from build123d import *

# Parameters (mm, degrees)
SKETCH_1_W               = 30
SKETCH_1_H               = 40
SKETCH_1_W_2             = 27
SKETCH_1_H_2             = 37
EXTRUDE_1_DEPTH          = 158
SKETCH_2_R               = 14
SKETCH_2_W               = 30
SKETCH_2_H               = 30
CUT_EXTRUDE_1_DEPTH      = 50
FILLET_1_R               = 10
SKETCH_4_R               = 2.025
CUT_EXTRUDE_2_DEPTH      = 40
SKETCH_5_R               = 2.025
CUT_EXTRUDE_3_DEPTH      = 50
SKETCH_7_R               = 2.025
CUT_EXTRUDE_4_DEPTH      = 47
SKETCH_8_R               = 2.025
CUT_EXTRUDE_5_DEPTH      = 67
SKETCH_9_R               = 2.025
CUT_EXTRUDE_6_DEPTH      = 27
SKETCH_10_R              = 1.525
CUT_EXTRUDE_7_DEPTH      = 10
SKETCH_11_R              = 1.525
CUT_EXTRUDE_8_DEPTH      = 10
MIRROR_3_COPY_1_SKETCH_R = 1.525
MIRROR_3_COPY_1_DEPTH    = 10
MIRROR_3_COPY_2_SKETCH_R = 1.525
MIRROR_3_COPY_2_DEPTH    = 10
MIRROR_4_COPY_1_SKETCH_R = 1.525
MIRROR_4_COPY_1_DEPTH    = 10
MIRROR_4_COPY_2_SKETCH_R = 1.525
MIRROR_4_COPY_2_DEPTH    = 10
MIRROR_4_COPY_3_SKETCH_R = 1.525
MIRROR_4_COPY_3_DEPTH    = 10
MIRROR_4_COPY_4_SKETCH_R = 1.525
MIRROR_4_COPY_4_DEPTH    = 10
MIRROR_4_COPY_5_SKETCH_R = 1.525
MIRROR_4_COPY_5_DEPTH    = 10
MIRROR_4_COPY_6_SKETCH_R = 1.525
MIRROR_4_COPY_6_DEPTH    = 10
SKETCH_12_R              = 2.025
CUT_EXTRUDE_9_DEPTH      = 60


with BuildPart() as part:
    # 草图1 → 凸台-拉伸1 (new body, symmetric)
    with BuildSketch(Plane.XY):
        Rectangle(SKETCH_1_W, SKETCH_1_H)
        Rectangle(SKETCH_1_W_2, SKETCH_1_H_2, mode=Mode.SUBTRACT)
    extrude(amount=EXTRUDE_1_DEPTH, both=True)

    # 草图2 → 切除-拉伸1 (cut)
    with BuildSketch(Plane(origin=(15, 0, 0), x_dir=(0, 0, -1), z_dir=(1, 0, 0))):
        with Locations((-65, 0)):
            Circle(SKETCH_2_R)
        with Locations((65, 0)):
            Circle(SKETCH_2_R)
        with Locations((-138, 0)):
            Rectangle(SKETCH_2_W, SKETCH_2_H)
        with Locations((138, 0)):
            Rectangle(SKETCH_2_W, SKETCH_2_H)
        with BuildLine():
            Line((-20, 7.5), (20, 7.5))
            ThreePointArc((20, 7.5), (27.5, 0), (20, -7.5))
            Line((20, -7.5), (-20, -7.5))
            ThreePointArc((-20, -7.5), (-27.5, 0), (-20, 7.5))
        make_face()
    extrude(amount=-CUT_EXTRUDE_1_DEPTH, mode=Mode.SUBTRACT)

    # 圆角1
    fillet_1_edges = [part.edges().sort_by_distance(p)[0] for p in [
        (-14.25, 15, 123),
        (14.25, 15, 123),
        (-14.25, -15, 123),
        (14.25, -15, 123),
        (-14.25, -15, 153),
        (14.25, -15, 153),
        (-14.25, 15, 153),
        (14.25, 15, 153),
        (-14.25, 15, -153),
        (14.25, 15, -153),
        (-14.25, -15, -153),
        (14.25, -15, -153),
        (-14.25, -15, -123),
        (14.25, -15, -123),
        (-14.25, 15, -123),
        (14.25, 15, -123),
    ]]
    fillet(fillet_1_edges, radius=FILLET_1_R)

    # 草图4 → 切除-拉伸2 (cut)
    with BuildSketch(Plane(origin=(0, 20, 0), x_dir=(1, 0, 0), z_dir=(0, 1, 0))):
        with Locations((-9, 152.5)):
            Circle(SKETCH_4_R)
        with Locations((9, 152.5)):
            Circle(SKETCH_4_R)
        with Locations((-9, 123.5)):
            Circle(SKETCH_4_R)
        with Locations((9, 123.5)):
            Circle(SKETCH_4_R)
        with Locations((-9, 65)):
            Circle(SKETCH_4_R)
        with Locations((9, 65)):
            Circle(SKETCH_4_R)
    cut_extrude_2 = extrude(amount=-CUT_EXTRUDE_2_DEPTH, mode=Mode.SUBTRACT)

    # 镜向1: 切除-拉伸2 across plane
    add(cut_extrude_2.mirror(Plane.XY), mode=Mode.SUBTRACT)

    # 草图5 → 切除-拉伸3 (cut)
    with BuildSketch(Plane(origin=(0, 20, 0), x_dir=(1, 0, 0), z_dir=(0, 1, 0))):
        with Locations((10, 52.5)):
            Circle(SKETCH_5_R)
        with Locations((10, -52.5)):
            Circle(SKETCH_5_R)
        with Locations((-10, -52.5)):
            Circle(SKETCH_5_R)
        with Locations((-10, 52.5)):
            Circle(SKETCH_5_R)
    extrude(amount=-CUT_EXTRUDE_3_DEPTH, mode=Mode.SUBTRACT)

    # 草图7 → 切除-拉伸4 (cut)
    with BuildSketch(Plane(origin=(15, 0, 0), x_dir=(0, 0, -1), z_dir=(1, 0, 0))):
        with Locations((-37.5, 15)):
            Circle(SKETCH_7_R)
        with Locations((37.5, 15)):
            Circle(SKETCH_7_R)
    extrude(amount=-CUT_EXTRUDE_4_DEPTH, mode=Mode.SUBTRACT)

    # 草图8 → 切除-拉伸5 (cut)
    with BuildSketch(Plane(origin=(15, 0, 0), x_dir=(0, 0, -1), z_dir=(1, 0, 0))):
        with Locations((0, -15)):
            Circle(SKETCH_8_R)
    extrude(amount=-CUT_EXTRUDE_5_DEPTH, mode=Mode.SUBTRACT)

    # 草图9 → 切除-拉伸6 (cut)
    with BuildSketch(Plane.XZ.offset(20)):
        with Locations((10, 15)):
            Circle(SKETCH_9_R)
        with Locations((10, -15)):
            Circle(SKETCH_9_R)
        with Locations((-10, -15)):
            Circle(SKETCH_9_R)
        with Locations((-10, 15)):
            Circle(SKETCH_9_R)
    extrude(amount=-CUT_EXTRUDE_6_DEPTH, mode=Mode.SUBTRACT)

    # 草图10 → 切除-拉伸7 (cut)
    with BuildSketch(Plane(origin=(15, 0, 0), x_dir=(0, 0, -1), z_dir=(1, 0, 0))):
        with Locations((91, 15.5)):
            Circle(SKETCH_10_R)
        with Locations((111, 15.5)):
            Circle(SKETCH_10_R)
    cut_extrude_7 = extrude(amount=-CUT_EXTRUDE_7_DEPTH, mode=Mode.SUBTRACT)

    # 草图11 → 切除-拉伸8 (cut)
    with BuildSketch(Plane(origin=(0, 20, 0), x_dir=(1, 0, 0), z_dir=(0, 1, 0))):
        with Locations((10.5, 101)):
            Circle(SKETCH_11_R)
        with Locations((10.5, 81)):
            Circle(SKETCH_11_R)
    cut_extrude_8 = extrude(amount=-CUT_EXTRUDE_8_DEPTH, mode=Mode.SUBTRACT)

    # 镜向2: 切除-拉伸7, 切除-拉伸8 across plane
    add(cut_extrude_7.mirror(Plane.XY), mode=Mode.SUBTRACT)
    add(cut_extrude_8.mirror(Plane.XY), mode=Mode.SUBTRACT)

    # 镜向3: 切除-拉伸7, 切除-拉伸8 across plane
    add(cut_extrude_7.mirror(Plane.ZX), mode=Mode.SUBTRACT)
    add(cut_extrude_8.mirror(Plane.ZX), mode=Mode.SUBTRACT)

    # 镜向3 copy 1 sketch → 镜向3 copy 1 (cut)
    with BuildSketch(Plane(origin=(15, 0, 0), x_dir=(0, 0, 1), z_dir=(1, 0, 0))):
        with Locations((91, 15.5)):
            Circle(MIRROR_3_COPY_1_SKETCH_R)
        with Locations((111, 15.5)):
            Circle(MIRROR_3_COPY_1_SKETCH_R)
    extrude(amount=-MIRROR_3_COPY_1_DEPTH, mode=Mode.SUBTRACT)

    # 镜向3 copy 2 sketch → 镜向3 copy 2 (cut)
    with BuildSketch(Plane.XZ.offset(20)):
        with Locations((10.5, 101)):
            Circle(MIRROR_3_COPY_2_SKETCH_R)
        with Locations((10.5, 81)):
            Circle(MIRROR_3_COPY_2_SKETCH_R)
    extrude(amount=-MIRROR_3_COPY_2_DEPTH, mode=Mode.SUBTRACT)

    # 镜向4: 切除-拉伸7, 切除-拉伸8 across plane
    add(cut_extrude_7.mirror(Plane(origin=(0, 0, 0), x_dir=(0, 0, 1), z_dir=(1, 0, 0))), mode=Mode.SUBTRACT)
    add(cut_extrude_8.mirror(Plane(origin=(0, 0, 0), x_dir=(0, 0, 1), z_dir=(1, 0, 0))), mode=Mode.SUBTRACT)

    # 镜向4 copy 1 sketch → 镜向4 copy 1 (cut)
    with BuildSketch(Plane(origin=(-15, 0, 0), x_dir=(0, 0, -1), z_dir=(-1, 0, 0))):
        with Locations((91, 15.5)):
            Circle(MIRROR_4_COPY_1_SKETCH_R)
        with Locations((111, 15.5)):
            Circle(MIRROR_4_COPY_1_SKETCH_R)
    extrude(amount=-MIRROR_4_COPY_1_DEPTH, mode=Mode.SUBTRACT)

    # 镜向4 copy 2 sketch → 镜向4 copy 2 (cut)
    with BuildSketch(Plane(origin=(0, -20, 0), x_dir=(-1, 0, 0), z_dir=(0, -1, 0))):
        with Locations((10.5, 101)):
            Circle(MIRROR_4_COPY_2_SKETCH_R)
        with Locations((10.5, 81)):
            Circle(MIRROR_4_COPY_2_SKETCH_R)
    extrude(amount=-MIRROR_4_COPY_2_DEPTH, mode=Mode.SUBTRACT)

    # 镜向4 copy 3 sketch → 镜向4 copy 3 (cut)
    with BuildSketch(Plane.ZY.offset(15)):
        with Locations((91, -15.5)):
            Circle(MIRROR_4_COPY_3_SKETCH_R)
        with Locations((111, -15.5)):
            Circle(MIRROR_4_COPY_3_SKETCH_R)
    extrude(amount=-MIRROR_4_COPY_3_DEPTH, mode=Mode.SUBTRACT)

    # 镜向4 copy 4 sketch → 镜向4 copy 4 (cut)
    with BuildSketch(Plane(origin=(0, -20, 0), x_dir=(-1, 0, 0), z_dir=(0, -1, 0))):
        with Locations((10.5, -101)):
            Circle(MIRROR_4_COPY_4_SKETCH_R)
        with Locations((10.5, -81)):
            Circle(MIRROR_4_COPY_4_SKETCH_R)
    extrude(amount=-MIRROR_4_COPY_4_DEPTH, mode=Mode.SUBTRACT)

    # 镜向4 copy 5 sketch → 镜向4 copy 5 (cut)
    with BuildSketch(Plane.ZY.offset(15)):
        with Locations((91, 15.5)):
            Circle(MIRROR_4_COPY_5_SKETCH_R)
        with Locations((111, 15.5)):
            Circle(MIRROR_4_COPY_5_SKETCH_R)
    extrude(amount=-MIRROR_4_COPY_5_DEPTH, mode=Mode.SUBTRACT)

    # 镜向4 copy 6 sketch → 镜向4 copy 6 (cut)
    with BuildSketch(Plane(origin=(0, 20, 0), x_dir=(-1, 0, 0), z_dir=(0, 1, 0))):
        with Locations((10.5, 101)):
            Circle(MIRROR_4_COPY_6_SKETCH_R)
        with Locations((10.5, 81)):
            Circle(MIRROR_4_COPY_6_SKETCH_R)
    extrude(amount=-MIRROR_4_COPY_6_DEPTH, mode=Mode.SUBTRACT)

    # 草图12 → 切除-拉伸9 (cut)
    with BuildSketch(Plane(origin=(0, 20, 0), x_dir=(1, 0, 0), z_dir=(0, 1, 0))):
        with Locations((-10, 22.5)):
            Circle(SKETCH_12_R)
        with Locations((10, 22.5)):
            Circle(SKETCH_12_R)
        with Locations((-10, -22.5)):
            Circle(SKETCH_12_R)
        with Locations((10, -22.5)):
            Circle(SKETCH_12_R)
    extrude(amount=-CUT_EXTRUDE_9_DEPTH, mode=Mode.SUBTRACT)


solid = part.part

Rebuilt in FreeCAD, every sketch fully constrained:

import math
import FreeCAD as App
import Part
import Sketcher

V = App.Vector


def edges_at(feature, points):
    """Names of the edges that pass closest to the given points."""
    edges = feature.Shape.Edges
    near = lambda p: min(range(len(edges)), key=lambda i: edges[i].distToShape(Part.Vertex(*p))[0])
    return sorted({f"Edge{near(p) + 1}" for p in points})

doc = App.newDocument("Part")
body = doc.addObject("PartDesign::Body", "Body")

sketch1 = body.newObject("Sketcher::SketchObject", "Sketch")
sketch1.AttachmentSupport = (doc.getObject("XY_Plane"), [""])
sketch1.MapMode = "FlatFace"
sketch1.addGeometry([
    Part.LineSegment(V(-15, 20, 0), V(-15, -20, 0)),
    Part.LineSegment(V(-15, -20, 0), V(15, -20, 0)),
    Part.LineSegment(V(15, -20, 0), V(15, 20, 0)),
    Part.LineSegment(V(15, 20, 0), V(-15, 20, 0)),
    Part.LineSegment(V(13.5, -18.5, 0), V(-13.5, -18.5, 0)),
    Part.LineSegment(V(-13.5, -18.5, 0), V(-13.5, 18.5, 0)),
    Part.LineSegment(V(-13.5, 18.5, 0), V(13.5, 18.5, 0)),
    Part.LineSegment(V(13.5, 18.5, 0), V(13.5, -18.5, 0)),
], False)
sketch1.addConstraint([
    Sketcher.Constraint("Coincident", 0, 2, 1, 1),
    Sketcher.Constraint("Coincident", 1, 2, 2, 1),
    Sketcher.Constraint("Coincident", 2, 2, 3, 1),
    Sketcher.Constraint("Coincident", 3, 2, 0, 1),
    Sketcher.Constraint("Coincident", 4, 2, 5, 1),
    Sketcher.Constraint("Coincident", 5, 2, 6, 1),
    Sketcher.Constraint("Coincident", 6, 2, 7, 1),
    Sketcher.Constraint("Coincident", 7, 2, 4, 1),
    Sketcher.Constraint("Vertical", 0),
    Sketcher.Constraint("Horizontal", 1),
    Sketcher.Constraint("Vertical", 2),
    Sketcher.Constraint("Horizontal", 3),
    Sketcher.Constraint("Horizontal", 4),
    Sketcher.Constraint("Vertical", 5),
    Sketcher.Constraint("Horizontal", 6),
    Sketcher.Constraint("Vertical", 7),
    Sketcher.Constraint("Symmetric", 0, 2, 2, 2, -1, 1),
    Sketcher.Constraint("Symmetric", 4, 2, 6, 2, -1, 1),
    Sketcher.Constraint("DistanceX", 1, 1, 1, 2, 30.0),
    Sketcher.Constraint("DistanceX", 4, 2, 4, 1, 27.0),
    Sketcher.Constraint("DistanceY", 0, 2, 0, 1, 40.0),
    Sketcher.Constraint("DistanceY", 5, 1, 5, 2, 37.0),
])
pad1 = body.newObject("PartDesign::Pad", "Pad")
pad1.Profile = sketch1
pad1.Length = 316
pad1.Midplane = True

sketch2 = body.newObject("Sketcher::SketchObject", "Sketch001")
sketch2.AttachmentSupport = (doc.getObject("YZ_Plane"), [""])
sketch2.MapMode = "FlatFace"
sketch2.AttachmentOffset = App.Placement(V(0, 0, 15), App.Rotation())
sketch2.addGeometry([
    Part.Circle(V(0, 65, 0), V(0, 0, 1), 14),
    Part.Circle(V(0, -65, 0), V(0, 0, 1), 14),
    Part.LineSegment(V(15, 153, 0), V(-15, 153, 0)),
    Part.LineSegment(V(-15, 153, 0), V(-15, 123, 0)),
    Part.LineSegment(V(-15, 123, 0), V(15, 123, 0)),
    Part.LineSegment(V(15, 123, 0), V(15, 153, 0)),
    Part.LineSegment(V(15, -123, 0), V(-15, -123, 0)),
    Part.LineSegment(V(-15, -123, 0), V(-15, -153, 0)),
    Part.LineSegment(V(-15, -153, 0), V(15, -153, 0)),
    Part.LineSegment(V(15, -153, 0), V(15, -123, 0)),
    Part.LineSegment(V(7.5, -20, 0), V(7.5, 20, 0)),
    Part.ArcOfCircle(Part.Circle(V(0, 20, 0), V(0, 0, 1), 7.5), math.radians(0), math.radians(180)),
    Part.LineSegment(V(-7.5, 20, 0), V(-7.5, -20, 0)),
    Part.ArcOfCircle(Part.Circle(V(0, -20, 0), V(0, 0, 1), 7.5), math.radians(180), math.radians(360)),
], False)
sketch2.addConstraint([
    Sketcher.Constraint("Coincident", 2, 2, 3, 1),
    Sketcher.Constraint("Coincident", 3, 2, 4, 1),
    Sketcher.Constraint("Coincident", 4, 2, 5, 1),
    Sketcher.Constraint("Coincident", 5, 2, 2, 1),
    Sketcher.Constraint("Coincident", 6, 2, 7, 1),
    Sketcher.Constraint("Coincident", 7, 2, 8, 1),
    Sketcher.Constraint("Coincident", 8, 2, 9, 1),
    Sketcher.Constraint("Coincident", 9, 2, 6, 1),
    Sketcher.Constraint("Tangent", 10, 2, 11, 1),
    Sketcher.Constraint("Tangent", 11, 2, 12, 1),
    Sketcher.Constraint("Tangent", 12, 2, 13, 1),
    Sketcher.Constraint("Tangent", 13, 2, 10, 1),
    Sketcher.Constraint("Horizontal", 2),
    Sketcher.Constraint("Vertical", 3),
    Sketcher.Constraint("Horizontal", 4),
    Sketcher.Constraint("Vertical", 5),
    Sketcher.Constraint("Horizontal", 6),
    Sketcher.Constraint("Vertical", 7),
    Sketcher.Constraint("Horizontal", 8),
    Sketcher.Constraint("Vertical", 9),
    Sketcher.Constraint("Vertical", 10),
    Sketcher.Constraint("Vertical", 12),
    Sketcher.Constraint("Equal", 0, 1),
    Sketcher.Constraint("Symmetric", 0, 3, 1, 3, -1, 1),
    Sketcher.Constraint("Symmetric", 11, 3, 13, 3, -1, 1),
    Sketcher.Constraint("Symmetric", 4, 2, 6, 2, -1, 1),
    Sketcher.Constraint("Symmetric", 2, 2, 8, 2, -1, 1),
    Sketcher.Constraint("PointOnObject", 0, 3, -2),
    Sketcher.Constraint("Vertical", 3, 2, 6, 2),
    Sketcher.Constraint("Equal", 8, 3),
    Sketcher.Constraint("Diameter", 0, 28.0),
    Sketcher.Constraint("Radius", 11, 7.5),
    Sketcher.Constraint("DistanceX", 2, 2, 2, 1, 30.0),
    Sketcher.Constraint("DistanceY", 10, 1, 10, 2, 40.0),
    Sketcher.Constraint("DistanceY", -1, 1, 0, 3, 65.0),
    Sketcher.Constraint("DistanceY", -1, 1, 2, 2, 153.0),
])
pocket1 = body.newObject("PartDesign::Pocket", "Pocket")
pocket1.Profile = sketch2
pocket1.Length = 50
doc.recompute()

fillet = body.newObject("PartDesign::Fillet", "Fillet")
fillet.Base = (pocket1, edges_at(pocket1, [
    (-14.25, 15, 123),
    (14.25, 15, 123),
    (-14.25, -15, 123),
    (14.25, -15, 123),
    (-14.25, -15, 153),
    (14.25, -15, 153),
    (-14.25, 15, 153),
    (14.25, 15, 153),
    (-14.25, 15, -153),
    (14.25, 15, -153),
    (-14.25, -15, -153),
    (14.25, -15, -153),
    (-14.25, -15, -123),
    (14.25, -15, -123),
    (-14.25, 15, -123),
    (14.25, 15, -123),
]))
fillet.Radius = 10

sketch3 = body.newObject("Sketcher::SketchObject", "Sketch002")
sketch3.AttachmentSupport = (doc.getObject("XZ_Plane"), [""])
sketch3.MapMode = "FlatFace"
sketch3.AttachmentOffset = App.Placement(V(0, 0, -20), App.Rotation())
sketch3.addGeometry([
    Part.Circle(V(-9, -152.5, 0), V(0, 0, 1), 2.025),
    Part.Circle(V(9, -152.5, 0), V(0, 0, 1), 2.025),
    Part.Circle(V(-9, -123.5, 0), V(0, 0, 1), 2.025),
    Part.Circle(V(9, -123.5, 0), V(0, 0, 1), 2.025),
    Part.Circle(V(-9, -65, 0), V(0, 0, 1), 2.025),
    Part.Circle(V(9, -65, 0), V(0, 0, 1), 2.025),
], False)
sketch3.addConstraint([
    Sketcher.Constraint("Equal", 0, 1),
    Sketcher.Constraint("Equal", 1, 2),
    Sketcher.Constraint("Equal", 2, 3),
    Sketcher.Constraint("Equal", 3, 4),
    Sketcher.Constraint("Equal", 4, 5),
    Sketcher.Constraint("Symmetric", 0, 3, 1, 3, -2),
    Sketcher.Constraint("Symmetric", 2, 3, 3, 3, -2),
    Sketcher.Constraint("Symmetric", 4, 3, 5, 3, -2),
    Sketcher.Constraint("Vertical", 0, 3, 2, 3),
    Sketcher.Constraint("Vertical", 2, 3, 4, 3),
    Sketcher.Constraint("Diameter", 0, 4.05),
    Sketcher.Constraint("DistanceX", 0, 3, -1, 1, 9.0),
    Sketcher.Constraint("DistanceY", 4, 3, -1, 1, 65.0),
    Sketcher.Constraint("DistanceY", 0, 3, 2, 3, 29.0),
    Sketcher.Constraint("DistanceY", 0, 3, -1, 1, 152.5),
])
pocket2 = body.newObject("PartDesign::Pocket", "Pocket001")
pocket2.Profile = sketch3
pocket2.Length = 40
pocket2.Reversed = True
doc.recompute()

mirrored = body.newObject("PartDesign::Mirrored", "Mirrored")
mirrored.Originals = [pocket2]
mirrored.MirrorPlane = (doc.getObject("XY_Plane"), [""])
body.Tip = mirrored

sketch4 = body.newObject("Sketcher::SketchObject", "Sketch003")
sketch4.AttachmentSupport = (doc.getObject("XZ_Plane"), [""])
sketch4.MapMode = "FlatFace"
sketch4.AttachmentOffset = App.Placement(V(0, 0, -20), App.Rotation())
sketch4.addGeometry([
    Part.Circle(V(10, -52.5, 0), V(0, 0, 1), 2.025),
    Part.Circle(V(10, 52.5, 0), V(0, 0, 1), 2.025),
    Part.Circle(V(-10, 52.5, 0), V(0, 0, 1), 2.025),
    Part.Circle(V(-10, -52.5, 0), V(0, 0, 1), 2.025),
], False)
sketch4.addConstraint([
    Sketcher.Constraint("Equal", 0, 1),
    Sketcher.Constraint("Equal", 1, 2),
    Sketcher.Constraint("Equal", 2, 3),
    Sketcher.Constraint("Symmetric", 0, 3, 2, 3, -1, 1),
    Sketcher.Constraint("Symmetric", 1, 3, 3, 3, -1, 1),
    Sketcher.Constraint("Symmetric", 1, 3, 2, 3, -2),
    Sketcher.Constraint("Diameter", 0, 4.05),
    Sketcher.Constraint("DistanceX", -1, 1, 0, 3, 10.0),
    Sketcher.Constraint("DistanceY", 0, 3, 1, 3, 105.0),
])
pocket3 = body.newObject("PartDesign::Pocket", "Pocket002")
pocket3.Profile = sketch4
pocket3.Length = 50
pocket3.Reversed = True

sketch5 = body.newObject("Sketcher::SketchObject", "Sketch004")
sketch5.AttachmentSupport = (doc.getObject("YZ_Plane"), [""])
sketch5.MapMode = "FlatFace"
sketch5.AttachmentOffset = App.Placement(V(0, 0, 15), App.Rotation())
sketch5.addGeometry([
    Part.Circle(V(15, 37.5, 0), V(0, 0, 1), 2.025),
    Part.Circle(V(15, -37.5, 0), V(0, 0, 1), 2.025),
], False)
sketch5.addConstraint([
    Sketcher.Constraint("Equal", 0, 1),
    Sketcher.Constraint("Symmetric", 0, 3, 1, 3, -1),
    Sketcher.Constraint("Diameter", 0, 4.05),
    Sketcher.Constraint("DistanceX", -1, 1, 0, 3, 15.0),
    Sketcher.Constraint("DistanceY", 1, 3, 0, 3, 75.0),
])
pocket4 = body.newObject("PartDesign::Pocket", "Pocket003")
pocket4.Profile = sketch5
pocket4.Length = 47

sketch6 = body.newObject("Sketcher::SketchObject", "Sketch005")
sketch6.AttachmentSupport = (doc.getObject("YZ_Plane"), [""])
sketch6.MapMode = "FlatFace"
sketch6.AttachmentOffset = App.Placement(V(0, 0, 15), App.Rotation())
sketch6.addGeometry(Part.Circle(V(-15, 0, 0), V(0, 0, 1), 2.025), False)
sketch6.addConstraint([
    Sketcher.Constraint("PointOnObject", 0, 3, -1),
    Sketcher.Constraint("Diameter", 0, 4.05),
    Sketcher.Constraint("DistanceX", 0, 3, -1, 1, 15.0),
])
pocket5 = body.newObject("PartDesign::Pocket", "Pocket004")
pocket5.Profile = sketch6
pocket5.Length = 67

sketch7 = body.newObject("Sketcher::SketchObject", "Sketch006")
sketch7.AttachmentSupport = (doc.getObject("XZ_Plane"), [""])
sketch7.MapMode = "FlatFace"
sketch7.AttachmentOffset = App.Placement(V(0, 0, 20), App.Rotation())
sketch7.addGeometry([
    Part.Circle(V(10, 15, 0), V(0, 0, 1), 2.025),
    Part.Circle(V(10, -15, 0), V(0, 0, 1), 2.025),
    Part.Circle(V(-10, -15, 0), V(0, 0, 1), 2.025),
    Part.Circle(V(-10, 15, 0), V(0, 0, 1), 2.025),
], False)
sketch7.addConstraint([
    Sketcher.Constraint("Equal", 0, 1),
    Sketcher.Constraint("Equal", 1, 2),
    Sketcher.Constraint("Equal", 2, 3),
    Sketcher.Constraint("Symmetric", 0, 3, 2, 3, -1, 1),
    Sketcher.Constraint("Symmetric", 1, 3, 3, 3, -1, 1),
    Sketcher.Constraint("Symmetric", 1, 3, 2, 3, -2),
    Sketcher.Constraint("Diameter", 0, 4.05),
    Sketcher.Constraint("DistanceX", -1, 1, 0, 3, 10.0),
    Sketcher.Constraint("DistanceY", -1, 1, 0, 3, 15.0),
])
pocket6 = body.newObject("PartDesign::Pocket", "Pocket005")
pocket6.Profile = sketch7
pocket6.Length = 27

sketch8 = body.newObject("Sketcher::SketchObject", "Sketch007")
sketch8.AttachmentSupport = (doc.getObject("YZ_Plane"), [""])
sketch8.MapMode = "FlatFace"
sketch8.AttachmentOffset = App.Placement(V(0, 0, 15), App.Rotation())
sketch8.addGeometry([
    Part.Circle(V(15.5, -91, 0), V(0, 0, 1), 1.525),
    Part.Circle(V(15.5, -111, 0), V(0, 0, 1), 1.525),
], False)
sketch8.addConstraint([
    Sketcher.Constraint("Equal", 0, 1),
    Sketcher.Constraint("Vertical", 0, 3, 1, 3),
    Sketcher.Constraint("Diameter", 0, 3.05),
    Sketcher.Constraint("DistanceY", 0, 3, -1, 1, 91.0),
    Sketcher.Constraint("DistanceY", 1, 3, -1, 1, 111.0),
    Sketcher.Constraint("DistanceX", -1, 1, 0, 3, 15.5),
])
pocket7 = body.newObject("PartDesign::Pocket", "Pocket006")
pocket7.Profile = sketch8
pocket7.Length = 10

sketch9 = body.newObject("Sketcher::SketchObject", "Sketch008")
sketch9.AttachmentSupport = (doc.getObject("XZ_Plane"), [""])
sketch9.MapMode = "FlatFace"
sketch9.AttachmentOffset = App.Placement(V(0, 0, -20), App.Rotation())
sketch9.addGeometry([
    Part.Circle(V(10.5, -101, 0), V(0, 0, 1), 1.525),
    Part.Circle(V(10.5, -81, 0), V(0, 0, 1), 1.525),
], False)
sketch9.addConstraint([
    Sketcher.Constraint("Equal", 0, 1),
    Sketcher.Constraint("Vertical", 0, 3, 1, 3),
    Sketcher.Constraint("Diameter", 0, 3.05),
    Sketcher.Constraint("DistanceY", 0, 3, -1, 1, 101.0),
    Sketcher.Constraint("DistanceY", 1, 3, -1, 1, 81.0),
    Sketcher.Constraint("DistanceX", -1, 1, 0, 3, 10.5),
])
pocket8 = body.newObject("PartDesign::Pocket", "Pocket007")
pocket8.Profile = sketch9
pocket8.Length = 10
pocket8.Reversed = True
doc.recompute()

mirrored2 = body.newObject("PartDesign::Mirrored", "Mirrored001")
mirrored2.Originals = [pocket7, pocket8]
mirrored2.MirrorPlane = (doc.getObject("XY_Plane"), [""])
body.Tip = mirrored2
doc.recompute()

mirrored3 = body.newObject("PartDesign::Mirrored", "Mirrored002")
mirrored3.Originals = [pocket7, pocket8]
mirrored3.MirrorPlane = (doc.getObject("XZ_Plane"), [""])
body.Tip = mirrored3

sketch10 = body.newObject("Sketcher::SketchObject", "Sketch009")
sketch10.AttachmentSupport = (doc.getObject("YZ_Plane"), [""])
sketch10.MapMode = "FlatFace"
sketch10.AttachmentOffset = App.Placement(V(0, 0, 15), App.Rotation())
sketch10.addGeometry([
    Part.Circle(V(-15.5, 91, 0), V(0, 0, 1), 1.525),
    Part.Circle(V(-15.5, 111, 0), V(0, 0, 1), 1.525),
], False)
sketch10.addConstraint([
    Sketcher.Constraint("Equal", 0, 1),
    Sketcher.Constraint("Vertical", 0, 3, 1, 3),
    Sketcher.Constraint("Diameter", 0, 3.05),
    Sketcher.Constraint("DistanceY", -1, 1, 0, 3, 91.0),
    Sketcher.Constraint("DistanceY", -1, 1, 1, 3, 111.0),
    Sketcher.Constraint("DistanceX", 0, 3, -1, 1, 15.5),
])
pocket9 = body.newObject("PartDesign::Pocket", "Pocket008")
pocket9.Profile = sketch10
pocket9.Length = 10

sketch11 = body.newObject("Sketcher::SketchObject", "Sketch010")
sketch11.AttachmentSupport = (doc.getObject("XZ_Plane"), [""])
sketch11.MapMode = "FlatFace"
sketch11.AttachmentOffset = App.Placement(V(0, 0, 20), App.Rotation())
sketch11.addGeometry([
    Part.Circle(V(10.5, 101, 0), V(0, 0, 1), 1.525),
    Part.Circle(V(10.5, 81, 0), V(0, 0, 1), 1.525),
], False)
sketch11.addConstraint([
    Sketcher.Constraint("Equal", 0, 1),
    Sketcher.Constraint("Vertical", 0, 3, 1, 3),
    Sketcher.Constraint("Diameter", 0, 3.05),
    Sketcher.Constraint("DistanceY", -1, 1, 0, 3, 101.0),
    Sketcher.Constraint("DistanceY", -1, 1, 1, 3, 81.0),
    Sketcher.Constraint("DistanceX", -1, 1, 0, 3, 10.5),
])
pocket10 = body.newObject("PartDesign::Pocket", "Pocket009")
pocket10.Profile = sketch11
pocket10.Length = 10
doc.recompute()

mirrored4 = body.newObject("PartDesign::Mirrored", "Mirrored003")
mirrored4.Originals = [pocket7, pocket8]
mirrored4.MirrorPlane = (doc.getObject("YZ_Plane"), [""])
body.Tip = mirrored4

sketch12 = body.newObject("Sketcher::SketchObject", "Sketch011")
sketch12.AttachmentSupport = (doc.getObject("YZ_Plane"), [""])
sketch12.MapMode = "FlatFace"
sketch12.AttachmentOffset = App.Placement(V(0, 0, -15), App.Rotation())
sketch12.addGeometry([
    Part.Circle(V(-15.5, -91, 0), V(0, 0, 1), 1.525),
    Part.Circle(V(-15.5, -111, 0), V(0, 0, 1), 1.525),
], False)
sketch12.addConstraint([
    Sketcher.Constraint("Equal", 0, 1),
    Sketcher.Constraint("Vertical", 0, 3, 1, 3),
    Sketcher.Constraint("Diameter", 0, 3.05),
    Sketcher.Constraint("DistanceY", 0, 3, -1, 1, 91.0),
    Sketcher.Constraint("DistanceY", 1, 3, -1, 1, 111.0),
    Sketcher.Constraint("DistanceX", 0, 3, -1, 1, 15.5),
])
pocket11 = body.newObject("PartDesign::Pocket", "Pocket010")
pocket11.Profile = sketch12
pocket11.Length = 10
pocket11.Reversed = True

sketch13 = body.newObject("Sketcher::SketchObject", "Sketch012")
sketch13.AttachmentSupport = (doc.getObject("XZ_Plane"), [""])
sketch13.MapMode = "FlatFace"
sketch13.AttachmentOffset = App.Placement(V(0, 0, 20), App.Rotation())
sketch13.addGeometry([
    Part.Circle(V(-10.5, -101, 0), V(0, 0, 1), 1.525),
    Part.Circle(V(-10.5, -81, 0), V(0, 0, 1), 1.525),
], False)
sketch13.addConstraint([
    Sketcher.Constraint("Equal", 0, 1),
    Sketcher.Constraint("Vertical", 0, 3, 1, 3),
    Sketcher.Constraint("Diameter", 0, 3.05),
    Sketcher.Constraint("DistanceY", 0, 3, -1, 1, 101.0),
    Sketcher.Constraint("DistanceY", 1, 3, -1, 1, 81.0),
    Sketcher.Constraint("DistanceX", 0, 3, -1, 1, 10.5),
])
pocket12 = body.newObject("PartDesign::Pocket", "Pocket011")
pocket12.Profile = sketch13
pocket12.Length = 10

sketch14 = body.newObject("Sketcher::SketchObject", "Sketch013")
sketch14.AttachmentSupport = (doc.getObject("YZ_Plane"), [""])
sketch14.MapMode = "FlatFace"
sketch14.AttachmentOffset = App.Placement(V(0, 0, -15), App.Rotation())
sketch14.addGeometry([
    Part.Circle(V(-15.5, 91, 0), V(0, 0, 1), 1.525),
    Part.Circle(V(-15.5, 111, 0), V(0, 0, 1), 1.525),
], False)
sketch14.addConstraint([
    Sketcher.Constraint("Equal", 0, 1),
    Sketcher.Constraint("Vertical", 0, 3, 1, 3),
    Sketcher.Constraint("Diameter", 0, 3.05),
    Sketcher.Constraint("DistanceY", -1, 1, 0, 3, 91.0),
    Sketcher.Constraint("DistanceY", -1, 1, 1, 3, 111.0),
    Sketcher.Constraint("DistanceX", 0, 3, -1, 1, 15.5),
])
pocket13 = body.newObject("PartDesign::Pocket", "Pocket012")
pocket13.Profile = sketch14
pocket13.Length = 10
pocket13.Reversed = True

sketch15 = body.newObject("Sketcher::SketchObject", "Sketch014")
sketch15.AttachmentSupport = (doc.getObject("XZ_Plane"), [""])
sketch15.MapMode = "FlatFace"
sketch15.AttachmentOffset = App.Placement(V(0, 0, 20), App.Rotation())
sketch15.addGeometry([
    Part.Circle(V(-10.5, 101, 0), V(0, 0, 1), 1.525),
    Part.Circle(V(-10.5, 81, 0), V(0, 0, 1), 1.525),
], False)
sketch15.addConstraint([
    Sketcher.Constraint("Equal", 0, 1),
    Sketcher.Constraint("Vertical", 0, 3, 1, 3),
    Sketcher.Constraint("Diameter", 0, 3.05),
    Sketcher.Constraint("DistanceY", -1, 1, 0, 3, 101.0),
    Sketcher.Constraint("DistanceY", -1, 1, 1, 3, 81.0),
    Sketcher.Constraint("DistanceX", 0, 3, -1, 1, 10.5),
])
pocket14 = body.newObject("PartDesign::Pocket", "Pocket013")
pocket14.Profile = sketch15
pocket14.Length = 10

sketch16 = body.newObject("Sketcher::SketchObject", "Sketch015")
sketch16.AttachmentSupport = (doc.getObject("YZ_Plane"), [""])
sketch16.MapMode = "FlatFace"
sketch16.AttachmentOffset = App.Placement(V(0, 0, -15), App.Rotation())
sketch16.addGeometry([
    Part.Circle(V(15.5, 91, 0), V(0, 0, 1), 1.525),
    Part.Circle(V(15.5, 111, 0), V(0, 0, 1), 1.525),
], False)
sketch16.addConstraint([
    Sketcher.Constraint("Equal", 0, 1),
    Sketcher.Constraint("Vertical", 0, 3, 1, 3),
    Sketcher.Constraint("Diameter", 0, 3.05),
    Sketcher.Constraint("DistanceY", -1, 1, 0, 3, 91.0),
    Sketcher.Constraint("DistanceY", -1, 1, 1, 3, 111.0),
    Sketcher.Constraint("DistanceX", -1, 1, 0, 3, 15.5),
])
pocket15 = body.newObject("PartDesign::Pocket", "Pocket014")
pocket15.Profile = sketch16
pocket15.Length = 10
pocket15.Reversed = True

sketch17 = body.newObject("Sketcher::SketchObject", "Sketch016")
sketch17.AttachmentSupport = (doc.getObject("XZ_Plane"), [""])
sketch17.MapMode = "FlatFace"
sketch17.AttachmentOffset = App.Placement(V(0, 0, -20), App.Rotation())
sketch17.addGeometry([
    Part.Circle(V(-10.5, 101, 0), V(0, 0, 1), 1.525),
    Part.Circle(V(-10.5, 81, 0), V(0, 0, 1), 1.525),
], False)
sketch17.addConstraint([
    Sketcher.Constraint("Equal", 0, 1),
    Sketcher.Constraint("Vertical", 0, 3, 1, 3),
    Sketcher.Constraint("Diameter", 0, 3.05),
    Sketcher.Constraint("DistanceY", -1, 1, 0, 3, 101.0),
    Sketcher.Constraint("DistanceY", -1, 1, 1, 3, 81.0),
    Sketcher.Constraint("DistanceX", 0, 3, -1, 1, 10.5),
])
pocket16 = body.newObject("PartDesign::Pocket", "Pocket015")
pocket16.Profile = sketch17
pocket16.Length = 10
pocket16.Reversed = True

sketch18 = body.newObject("Sketcher::SketchObject", "Sketch017")
sketch18.AttachmentSupport = (doc.getObject("XZ_Plane"), [""])
sketch18.MapMode = "FlatFace"
sketch18.AttachmentOffset = App.Placement(V(0, 0, -20), App.Rotation())
sketch18.addGeometry([
    Part.Circle(V(-10, -22.5, 0), V(0, 0, 1), 2.025),
    Part.Circle(V(10, -22.5, 0), V(0, 0, 1), 2.025),
    Part.Circle(V(-10, 22.5, 0), V(0, 0, 1), 2.025),
    Part.Circle(V(10, 22.5, 0), V(0, 0, 1), 2.025),
], False)
sketch18.addConstraint([
    Sketcher.Constraint("Equal", 0, 1),
    Sketcher.Constraint("Equal", 1, 2),
    Sketcher.Constraint("Equal", 2, 3),
    Sketcher.Constraint("Symmetric", 1, 3, 2, 3, -1, 1),
    Sketcher.Constraint("Symmetric", 0, 3, 3, 3, -1, 1),
    Sketcher.Constraint("Symmetric", 0, 3, 1, 3, -2),
    Sketcher.Constraint("Diameter", 0, 4.05),
    Sketcher.Constraint("DistanceX", 0, 3, -1, 1, 10.0),
    Sketcher.Constraint("DistanceY", 0, 3, 2, 3, 45.0),
])
pocket17 = body.newObject("PartDesign::Pocket", "Pocket016")
pocket17.Profile = sketch18
pocket17.Length = 60
pocket17.Reversed = True

doc.recompute()
